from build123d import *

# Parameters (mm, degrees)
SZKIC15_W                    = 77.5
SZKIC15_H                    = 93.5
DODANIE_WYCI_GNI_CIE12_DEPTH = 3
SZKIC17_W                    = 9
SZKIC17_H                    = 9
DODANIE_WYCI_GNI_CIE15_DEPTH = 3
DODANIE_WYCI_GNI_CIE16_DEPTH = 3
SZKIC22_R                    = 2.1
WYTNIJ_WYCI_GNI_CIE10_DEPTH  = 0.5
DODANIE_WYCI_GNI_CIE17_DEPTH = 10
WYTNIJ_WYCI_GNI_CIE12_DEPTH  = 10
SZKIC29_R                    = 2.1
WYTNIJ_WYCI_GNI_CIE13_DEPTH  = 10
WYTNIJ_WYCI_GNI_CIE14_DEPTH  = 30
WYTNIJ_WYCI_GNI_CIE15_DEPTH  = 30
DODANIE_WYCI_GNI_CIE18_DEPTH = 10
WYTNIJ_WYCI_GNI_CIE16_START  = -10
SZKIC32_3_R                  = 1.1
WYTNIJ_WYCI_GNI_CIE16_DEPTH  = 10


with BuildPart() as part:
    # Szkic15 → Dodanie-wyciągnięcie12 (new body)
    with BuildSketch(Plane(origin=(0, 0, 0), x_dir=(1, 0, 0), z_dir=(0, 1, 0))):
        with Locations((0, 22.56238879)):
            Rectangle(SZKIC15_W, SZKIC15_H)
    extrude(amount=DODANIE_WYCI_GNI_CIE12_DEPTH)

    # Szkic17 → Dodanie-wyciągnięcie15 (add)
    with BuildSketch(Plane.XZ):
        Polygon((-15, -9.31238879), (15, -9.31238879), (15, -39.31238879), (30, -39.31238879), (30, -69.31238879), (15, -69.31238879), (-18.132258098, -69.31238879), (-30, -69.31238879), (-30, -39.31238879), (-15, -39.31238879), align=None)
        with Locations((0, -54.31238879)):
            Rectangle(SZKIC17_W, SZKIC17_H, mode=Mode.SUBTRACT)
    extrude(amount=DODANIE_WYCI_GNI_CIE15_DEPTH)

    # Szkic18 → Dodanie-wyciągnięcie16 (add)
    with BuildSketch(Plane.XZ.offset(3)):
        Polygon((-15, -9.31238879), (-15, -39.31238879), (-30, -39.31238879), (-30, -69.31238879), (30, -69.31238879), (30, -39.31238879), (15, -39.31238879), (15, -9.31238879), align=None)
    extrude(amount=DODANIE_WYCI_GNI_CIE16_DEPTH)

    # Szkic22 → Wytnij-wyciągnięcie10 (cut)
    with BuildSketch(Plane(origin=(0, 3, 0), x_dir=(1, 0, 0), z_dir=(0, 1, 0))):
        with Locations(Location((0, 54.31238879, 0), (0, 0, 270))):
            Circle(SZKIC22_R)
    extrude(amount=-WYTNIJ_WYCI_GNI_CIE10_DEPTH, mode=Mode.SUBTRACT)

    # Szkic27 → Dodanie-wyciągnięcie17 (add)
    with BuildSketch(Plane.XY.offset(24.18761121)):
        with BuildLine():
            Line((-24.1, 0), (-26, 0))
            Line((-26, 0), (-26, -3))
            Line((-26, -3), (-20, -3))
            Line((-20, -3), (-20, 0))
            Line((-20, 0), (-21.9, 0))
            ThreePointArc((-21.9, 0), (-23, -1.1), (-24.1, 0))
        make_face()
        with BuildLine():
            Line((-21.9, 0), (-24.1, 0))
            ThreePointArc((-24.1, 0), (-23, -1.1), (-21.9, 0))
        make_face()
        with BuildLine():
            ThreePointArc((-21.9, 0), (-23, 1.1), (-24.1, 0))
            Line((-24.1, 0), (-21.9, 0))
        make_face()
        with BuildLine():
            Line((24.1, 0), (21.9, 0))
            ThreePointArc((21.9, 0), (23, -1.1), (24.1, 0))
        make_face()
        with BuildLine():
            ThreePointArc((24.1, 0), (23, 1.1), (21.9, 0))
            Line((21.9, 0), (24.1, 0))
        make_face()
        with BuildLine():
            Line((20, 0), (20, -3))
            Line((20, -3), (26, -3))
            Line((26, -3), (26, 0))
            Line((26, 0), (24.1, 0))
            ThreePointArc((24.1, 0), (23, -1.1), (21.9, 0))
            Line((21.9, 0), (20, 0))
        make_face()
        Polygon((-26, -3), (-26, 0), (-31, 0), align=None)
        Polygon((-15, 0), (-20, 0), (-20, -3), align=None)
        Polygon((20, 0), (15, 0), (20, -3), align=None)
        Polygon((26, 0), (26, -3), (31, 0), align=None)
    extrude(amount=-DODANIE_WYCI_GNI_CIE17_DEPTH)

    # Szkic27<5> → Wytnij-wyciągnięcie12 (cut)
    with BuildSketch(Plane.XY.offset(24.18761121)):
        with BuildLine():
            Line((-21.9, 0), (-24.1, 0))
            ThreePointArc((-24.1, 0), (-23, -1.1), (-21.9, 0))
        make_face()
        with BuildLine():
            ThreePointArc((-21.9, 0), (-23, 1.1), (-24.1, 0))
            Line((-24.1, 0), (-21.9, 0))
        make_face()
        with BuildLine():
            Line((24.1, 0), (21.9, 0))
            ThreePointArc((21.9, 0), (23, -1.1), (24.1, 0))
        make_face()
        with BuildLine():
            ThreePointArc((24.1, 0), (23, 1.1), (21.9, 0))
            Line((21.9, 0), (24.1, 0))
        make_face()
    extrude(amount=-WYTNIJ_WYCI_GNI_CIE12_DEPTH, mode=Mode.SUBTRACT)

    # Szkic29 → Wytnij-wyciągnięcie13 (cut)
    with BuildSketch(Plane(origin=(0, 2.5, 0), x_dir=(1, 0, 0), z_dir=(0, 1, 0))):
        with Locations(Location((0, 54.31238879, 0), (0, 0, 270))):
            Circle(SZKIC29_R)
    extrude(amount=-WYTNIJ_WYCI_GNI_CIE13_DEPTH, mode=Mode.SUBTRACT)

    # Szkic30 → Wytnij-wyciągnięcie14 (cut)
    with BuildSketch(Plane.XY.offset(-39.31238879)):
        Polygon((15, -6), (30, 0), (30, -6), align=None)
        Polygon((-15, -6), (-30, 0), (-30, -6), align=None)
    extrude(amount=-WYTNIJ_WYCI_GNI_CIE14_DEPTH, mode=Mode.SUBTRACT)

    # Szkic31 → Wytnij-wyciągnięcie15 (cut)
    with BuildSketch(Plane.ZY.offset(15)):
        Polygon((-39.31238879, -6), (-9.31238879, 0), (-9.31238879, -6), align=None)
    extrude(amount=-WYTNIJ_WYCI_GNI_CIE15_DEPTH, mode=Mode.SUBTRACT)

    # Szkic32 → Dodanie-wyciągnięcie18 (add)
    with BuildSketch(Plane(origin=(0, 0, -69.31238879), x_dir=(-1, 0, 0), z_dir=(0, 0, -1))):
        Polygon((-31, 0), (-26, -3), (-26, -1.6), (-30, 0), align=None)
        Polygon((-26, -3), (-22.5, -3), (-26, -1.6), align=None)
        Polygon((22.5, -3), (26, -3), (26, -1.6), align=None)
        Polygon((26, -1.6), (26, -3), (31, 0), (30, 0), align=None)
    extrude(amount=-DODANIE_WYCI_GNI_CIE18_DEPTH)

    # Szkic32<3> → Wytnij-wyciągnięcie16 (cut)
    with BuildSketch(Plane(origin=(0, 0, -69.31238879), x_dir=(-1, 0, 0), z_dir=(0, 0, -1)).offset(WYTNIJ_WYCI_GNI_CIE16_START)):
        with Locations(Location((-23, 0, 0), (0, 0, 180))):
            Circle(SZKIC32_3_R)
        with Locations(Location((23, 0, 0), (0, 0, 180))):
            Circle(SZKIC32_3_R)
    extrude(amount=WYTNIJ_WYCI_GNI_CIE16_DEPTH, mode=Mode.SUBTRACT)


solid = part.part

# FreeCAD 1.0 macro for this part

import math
import FreeCAD as App
import Part
import Sketcher


def add_polygon(sketch, points):
    """Adds a closed chain of lines whose ends are joined by coincident constraints."""
    first, n = sketch.GeometryCount, len(points)
    for a, b in zip(points, points[1:] + points[:1]):
        sketch.addGeometry(Part.LineSegment(App.Vector(*a, 0), App.Vector(*b, 0)), False)
    for i in range(n):
        sketch.addConstraint(Sketcher.Constraint("Coincident", first + i, 2, first + (i + 1) % n, 1))

doc = App.newDocument("Part")
body = doc.addObject("PartDesign::Body", "Body")

sketch1 = body.newObject("Sketcher::SketchObject", "Sketch")
sketch1.AttachmentSupport = (doc.getObject("XZ_Plane"), [""])
sketch1.MapMode = "FlatFace"
add_polygon(sketch1, [(-39, -69), (-39, 24), (39, 24), (39, -69)])
sketch1.addConstraint([
    Sketcher.Constraint("Vertical", 0),
    Sketcher.Constraint("Horizontal", 1),
    Sketcher.Constraint("Vertical", 2),
    Sketcher.Constraint("Horizontal", 3),
    Sketcher.Constraint("DistanceX", 1, 1, 1, 2, 77.5),
    Sketcher.Constraint("DistanceY", 0, 1, 0, 2, 93.5),
    Sketcher.Constraint("DistanceX", 0, 2, -1, 1, 38.75),
    Sketcher.Constraint("DistanceY", -1, 1, 0, 2, 24.187611),
])
pad1 = body.newObject("PartDesign::Pad", "Pad")
pad1.Profile = sketch1
pad1.Length = 3
pad1.Reversed = True

sketch2 = body.newObject("Sketcher::SketchObject", "Sketch001")
sketch2.AttachmentSupport = (doc.getObject("XZ_Plane"), [""])
sketch2.MapMode = "FlatFace"
add_polygon(sketch2, [(15, -9), (-15, -9), (-15, -39), (-30, -39), (-30, -69), (30, -69), (30, -39), (15, -39)])
add_polygon(sketch2, [(-4, -59), (-4, -50), (4, -50), (4, -59)])
sketch2.addConstraint([
    Sketcher.Constraint("Horizontal", 0),
    Sketcher.Constraint("Vertical", 1),
    Sketcher.Constraint("Horizontal", 2),
    Sketcher.Constraint("Vertical", 3),
    Sketcher.Constraint("Horizontal", 4),
    Sketcher.Constraint("Vertical", 5),
    Sketcher.Constraint("Horizontal", 6),
    Sketcher.Constraint("Vertical", 7),
    Sketcher.Constraint("Vertical", 8),
    Sketcher.Constraint("Horizontal", 9),
    Sketcher.Constraint("Vertical", 10),
    Sketcher.Constraint("Horizontal", 11),
    Sketcher.Constraint("Symmetric", 2, 2, 5, 2, -2),
    Sketcher.Constraint("Equal", 2, 6),
    Sketcher.Constraint("Equal", 0, 1),
    Sketcher.Constraint("Equal", 1, 3),
    Sketcher.Constraint("Equal", 11, 8),
    Sketcher.Constraint("DistanceX", 0, 2, 0, 1, 30.0),
    Sketcher.Constraint("DistanceX", 2, 2, 2, 1, 15.0),
    Sketcher.Constraint("DistanceX", 9, 1, 9, 2, 9.0),
    Sketcher.Constraint("DistanceX", 8, 2, -1, 1, 4.5),
    Sketcher.Constraint("DistanceY", 8, 2, 1, 2, 10.5),
    Sketcher.Constraint("DistanceY", 0, 2, -1, 1, 9.312389),
])
pad2 = body.newObject("PartDesign::Pad", "Pad001")
pad2.Profile = sketch2
pad2.Length = 3

sketch3 = body.newObject("Sketcher::SketchObject", "Sketch002")
sketch3.AttachmentSupport = (doc.getObject("XZ_Plane"), [""])
sketch3.MapMode = "FlatFace"
sketch3.AttachmentOffset = App.Placement(App.Vector(0, 0, 3), App.Rotation())
add_polygon(sketch3, [(-15, -9), (-15, -39), (-30, -39), (-30, -69), (30, -69), (30, -39), (15, -39), (15, -9)])
sketch3.addConstraint([
    Sketcher.Constraint("Vertical", 0),
    Sketcher.Constraint("Horizontal", 1),
    Sketcher.Constraint("Vertical", 2),
    Sketcher.Constraint("Horizontal", 3),
    Sketcher.Constraint("Vertical", 4),
    Sketcher.Constraint("Horizontal", 5),
    Sketcher.Constraint("Vertical", 6),
    Sketcher.Constraint("Horizontal", 7),
    Sketcher.Constraint("Symmetric", 1, 2, 4, 2, -2),
    Sketcher.Constraint("Equal", 1, 5),
    Sketcher.Constraint("Equal", 7, 0),
    Sketcher.Constraint("Equal", 0, 2),
    Sketcher.Constraint("DistanceX", 1, 2, 1, 1, 15.0),
    Sketcher.Constraint("DistanceX", 3, 1, 3, 2, 60.0),
    Sketcher.Constraint("DistanceY", 0, 2, -1, 1, 39.312389),
])
pad3 = body.newObject("PartDesign::Pad", "Pad002")
pad3.Profile = sketch3
pad3.Length = 3

sketch4 = body.newObject("Sketcher::SketchObject", "Sketch003")
sketch4.AttachmentSupport = (doc.getObject("XZ_Plane"), [""])
sketch4.MapMode = "FlatFace"
sketch4.AttachmentOffset = App.Placement(App.Vector(0, 0, -3), App.Rotation())
sketch4.addGeometry(Part.Circle(App.Vector(0, -54.3, 0), App.Vector(0, 0, 1), 2.1), False)
sketch4.addConstraint([
    Sketcher.Constraint("PointOnObject", 0, 3, -2),
    Sketcher.Constraint("Diameter", 0, 4.2),
    Sketcher.Constraint("DistanceY", 0, 3, -1, 1, 54.312389),
])
pocket1 = body.newObject("PartDesign::Pocket", "Pocket")
pocket1.Profile = sketch4
pocket1.Length = 0.5
pocket1.Reversed = True

sketch5 = body.newObject("Sketcher::SketchObject", "Sketch004")
sketch5.AttachmentSupport = (doc.getObject("XY_Plane"), [""])
sketch5.MapMode = "FlatFace"
sketch5.AttachmentOffset = App.Placement(App.Vector(0, 0, 24.187611), App.Rotation())
sketch5.addGeometry([
    Part.LineSegment(App.Vector(-26, -3, 0), App.Vector(-20, -3, 0)),
    Part.LineSegment(App.Vector(-20, -3, 0), App.Vector(-15, 0, 0)),
    Part.LineSegment(App.Vector(-15, 0, 0), App.Vector(-21.9, 0, 0)),
    Part.ArcOfCircle(Part.Circle(App.Vector(-23, 0, 0), App.Vector(0, 0, 1), 1.1), math.radians(0), math.radians(180)),
    Part.LineSegment(App.Vector(-24.1, 0, 0), App.Vector(-31, 0, 0)),
    Part.LineSegment(App.Vector(-31, 0, 0), App.Vector(-26, -3, 0)),
    Part.ArcOfCircle(Part.Circle(App.Vector(23, 0, 0), App.Vector(0, 0, 1), 1.1), math.radians(0), math.radians(180)),
    Part.LineSegment(App.Vector(21.9, 0, 0), App.Vector(15, 0, 0)),
    Part.LineSegment(App.Vector(15, 0, 0), App.Vector(20, -3, 0)),
    Part.LineSegment(App.Vector(20, -3, 0), App.Vector(26, -3, 0)),
    Part.LineSegment(App.Vector(26, -3, 0), App.Vector(31, 0, 0)),
    Part.LineSegment(App.Vector(31, 0, 0), App.Vector(24.1, 0, 0)),
], False)
sketch5.addConstraint([
    Sketcher.Constraint("Coincident", 0, 2, 1, 1),
    Sketcher.Constraint("Coincident", 1, 2, 2, 1),
    Sketcher.Constraint("Coincident", 2, 2, 3, 1),
    Sketcher.Constraint("Coincident", 3, 2, 4, 1),
    Sketcher.Constraint("Coincident", 4, 2, 5, 1),
    Sketcher.Constraint("Coincident", 5, 2, 0, 1),
    Sketcher.Constraint("Coincident", 6, 2, 7, 1),
    Sketcher.Constraint("Coincident", 7, 2, 8, 1),
    Sketcher.Constraint("Coincident", 8, 2, 9, 1),
    Sketcher.Constraint("Coincident", 9, 2, 10, 1),
    Sketcher.Constraint("Coincident", 10, 2, 11, 1),
    Sketcher.Constraint("Coincident", 11, 2, 6, 1),
    Sketcher.Constraint("Horizontal", 0),
    Sketcher.Constraint("Horizontal", 2),
    Sketcher.Constraint("Horizontal", 4),
    Sketcher.Constraint("Horizontal", 7),
    Sketcher.Constraint("Horizontal", 9),
    Sketcher.Constraint("Horizontal", 11),
    Sketcher.Constraint("Equal", 3, 6),
    Sketcher.Constraint("Symmetric", 3, 3, 6, 3, -1, 1),
    Sketcher.Constraint("Symmetric", 1, 2, 7, 2, -1, 1),
    Sketcher.Constraint("Symmetric", 4, 2, 10, 2, -1, 1),
    Sketcher.Constraint("Symmetric", 0, 2, 8, 2, -2),
    Sketcher.Constraint("PointOnObject", 3, 3, -1),
    Sketcher.Constraint("PointOnObject", 1, 2, -1),
    Sketcher.Constraint("PointOnObject", 3, 2, -1),
    Sketcher.Constraint("Parallel", 5, 8),
    Sketcher.Constraint("Parallel", 1, 10),
    Sketcher.Constraint("Equal", 2, 4),
    Sketcher.Constraint("Radius", 3, 1.1),
    Sketcher.Constraint("DistanceX", 0, 1, 0, 2, 6.0),
    Sketcher.Constraint("DistanceX", 2, 2, 2, 1, 6.9),
    Sketcher.Constraint("DistanceX", 3, 3, -1, 1, 23.0),
    Sketcher.Constraint("DistanceY", 0, 2, -1, 1, 3.0),
])
pad4 = body.newObject("PartDesign::Pad", "Pad003")
pad4.Profile = sketch5
pad4.Length = 10
pad4.Reversed = True

sketch6 = body.newObject("Sketcher::SketchObject", "Sketch005")
sketch6.AttachmentSupport = (doc.getObject("XY_Plane"), [""])
sketch6.MapMode = "FlatFace"
sketch6.AttachmentOffset = App.Placement(App.Vector(0, 0, 24.187611), App.Rotation())
sketch6.addGeometry([
    Part.Circle(App.Vector(-23, 0, 0), App.Vector(0, 0, 1), 1.1),
    Part.Circle(App.Vector(23, 0, 0), App.Vector(0, 0, 1), 1.1),
], False)
sketch6.addConstraint([
    Sketcher.Constraint("Equal", 0, 1),
    Sketcher.Constraint("Symmetric", 0, 3, 1, 3, -1, 1),
    Sketcher.Constraint("PointOnObject", 0, 3, -1),
    Sketcher.Constraint("Diameter", 0, 2.2),
    Sketcher.Constraint("DistanceX", 0, 3, -1, 1, 23.0),
])
pocket2 = body.newObject("PartDesign::Pocket", "Pocket001")
pocket2.Profile = sketch6
pocket2.Length = 10

sketch7 = body.newObject("Sketcher::SketchObject", "Sketch006")
sketch7.AttachmentSupport = (doc.getObject("XZ_Plane"), [""])
sketch7.MapMode = "FlatFace"
sketch7.AttachmentOffset = App.Placement(App.Vector(0, 0, -2.5), App.Rotation())
sketch7.addGeometry(Part.Circle(App.Vector(0, -54.3, 0), App.Vector(0, 0, 1), 2.1), False)
sketch7.addConstraint([
    Sketcher.Constraint("PointOnObject", 0, 3, -2),
    Sketcher.Constraint("Diameter", 0, 4.2),
    Sketcher.Constraint("DistanceY", 0, 3, -1, 1, 54.312389),
])
pocket3 = body.newObject("PartDesign::Pocket", "Pocket002")
pocket3.Profile = sketch7
pocket3.Length = 10
pocket3.Reversed = True

sketch8 = body.newObject("Sketcher::SketchObject", "Sketch007")
sketch8.AttachmentSupport = (doc.getObject("XY_Plane"), [""])
sketch8.MapMode = "FlatFace"
sketch8.AttachmentOffset = App.Placement(App.Vector(0, 0, -39.312389), App.Rotation())
add_polygon(sketch8, [(30, 0), (15, -6), (30, -6)])
add_polygon(sketch8, [(-15, -6), (-30, 0), (-30, -6)])
sketch8.addConstraint([
    Sketcher.Constraint("Horizontal", 1),
    Sketcher.Constraint("Vertical", 2),
    Sketcher.Constraint("Vertical", 4),
    Sketcher.Constraint("Horizontal", 5),
    Sketcher.Constraint("Symmetric", 2, 2, 3, 2, -1, 1),
    Sketcher.Constraint("Symmetric", 0, 2, 5, 2, -2),
    Sketcher.Constraint("PointOnObject", 2, 2, -1),
    Sketcher.Constraint("DistanceX", 1, 1, 1, 2, 15.0),
    Sketcher.Constraint("DistanceY", 2, 1, 2, 2, 6.0),
    Sketcher.Constraint("DistanceX", -1, 1, 0, 2, 15.0),
])
pocket4 = body.newObject("PartDesign::Pocket", "Pocket003")
pocket4.Profile = sketch8
pocket4.Length = 30

sketch9 = body.newObject("Sketcher::SketchObject", "Sketch008")
sketch9.AttachmentSupport = (doc.getObject("YZ_Plane"), [""])
sketch9.MapMode = "FlatFace"
sketch9.AttachmentOffset = App.Placement(App.Vector(0, 0, -15), App.Rotation())
add_polygon(sketch9, [(0, -9), (-6, -39), (-6, -9)])
sketch9.addConstraint([
    Sketcher.Constraint("Vertical", 1),
    Sketcher.Constraint("Horizontal", 2),
    Sketcher.Constraint("PointOnObject", 2, 2, -2),
    Sketcher.Constraint("DistanceX", 2, 1, 2, 2, 6.0),
    Sketcher.Constraint("DistanceY", 1, 1, 1, 2, 30.0),
    Sketcher.Constraint("DistanceY", 0, 2, -1, 1, 39.312389),
])
pocket5 = body.newObject("PartDesign::Pocket", "Pocket004")
pocket5.Profile = sketch9
pocket5.Length = 30
pocket5.Reversed = True

sketch10 = body.newObject("Sketcher::SketchObject", "Sketch009")
sketch10.AttachmentSupport = (doc.getObject("XY_Plane"), [""])
sketch10.MapMode = "FlatFace"
sketch10.AttachmentOffset = App.Placement(App.Vector(0, 0, -69.312389), App.Rotation())
add_polygon(sketch10, [(31, 0), (26, -3), (22.5, -3), (30, 0)])
add_polygon(sketch10, [(-22.5, -3), (-26, -3), (-31, 0), (-30, 0)])
sketch10.addConstraint([
    Sketcher.Constraint("Horizontal", 1),
    Sketcher.Constraint("Horizontal", 3),
    Sketcher.Constraint("Horizontal", 4),
    Sketcher.Constraint("Horizontal", 6),
    Sketcher.Constraint("Symmetric", 3, 2, 5, 2, -1, 1),
    Sketcher.Constraint("Symmetric", 0, 2, 4, 2, -2),
    Sketcher.Constraint("Symmetric", 2, 2, 6, 2, -2),
    Sketcher.Constraint("Equal", 1, 4),
    Sketcher.Constraint("DistanceX", 3, 1, 3, 2, 1.0),
    Sketcher.Constraint("DistanceX", 1, 2, 1, 1, 3.5),
    Sketcher.Constraint("DistanceX", -1, 1, 0, 2, 26.0),
    Sketcher.Constraint("DistanceY", 0, 2, -1, 1, 3.0),
    Sketcher.Constraint("DistanceX", -1, 1, 2, 2, 30.0),
])
pad5 = body.newObject("PartDesign::Pad", "Pad004")
pad5.Profile = sketch10
pad5.Length = 10

sketch11 = body.newObject("Sketcher::SketchObject", "Sketch010")
sketch11.AttachmentSupport = (doc.getObject("XY_Plane"), [""])
sketch11.MapMode = "FlatFace"
sketch11.AttachmentOffset = App.Placement(App.Vector(0, 0, -59.312389), App.Rotation())
sketch11.addGeometry([
    Part.Circle(App.Vector(23, 0, 0), App.Vector(0, 0, 1), 1.1),
    Part.Circle(App.Vector(-23, 0, 0), App.Vector(0, 0, 1), 1.1),
], False)
sketch11.addConstraint([
    Sketcher.Constraint("Equal", 0, 1),
    Sketcher.Constraint("Symmetric", 0, 3, 1, 3, -1, 1),
    Sketcher.Constraint("PointOnObject", 0, 3, -1),
    Sketcher.Constraint("Diameter", 0, 2.2),
    Sketcher.Constraint("DistanceX", -1, 1, 0, 3, 23.0),
])
pocket6 = body.newObject("PartDesign::Pocket", "Pocket005")
pocket6.Profile = sketch11
pocket6.Length = 10

doc.recompute()
